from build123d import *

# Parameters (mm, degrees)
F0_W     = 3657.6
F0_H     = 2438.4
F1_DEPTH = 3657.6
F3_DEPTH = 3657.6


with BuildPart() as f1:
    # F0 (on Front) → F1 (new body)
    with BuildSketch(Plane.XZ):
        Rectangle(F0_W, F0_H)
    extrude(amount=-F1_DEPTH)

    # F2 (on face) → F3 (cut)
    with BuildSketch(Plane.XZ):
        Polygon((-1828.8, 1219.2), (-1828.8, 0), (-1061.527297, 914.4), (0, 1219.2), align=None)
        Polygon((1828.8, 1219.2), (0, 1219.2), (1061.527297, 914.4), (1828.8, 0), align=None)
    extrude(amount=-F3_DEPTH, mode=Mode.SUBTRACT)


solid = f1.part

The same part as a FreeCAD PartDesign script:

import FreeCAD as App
import Part
import Sketcher
Q = App.Units.Quantity


def add_polygon(sketch, points):
    """Adds a closed chain of lines whose ends are joined by coincident constraints."""
    first, n = sketch.GeometryCount, len(points)
    for a, b in zip(points, points[1:] + points[:1]):
        sketch.addGeometry(Part.LineSegment(App.Vector(*a, 0), App.Vector(*b, 0)), False)
    for i in range(n):
        sketch.addConstraint(Sketcher.Constraint("Coincident", first + i, 2, first + (i + 1) % n, 1))

doc = App.newDocument("Part")
body = doc.addObject("PartDesign::Body", "Body")

# Sketch on XZ plane
sketch1 = body.newObject("Sketcher::SketchObject", "Sketch")
sketch1.AttachmentSupport = (doc.getObject("XZ_Plane"), [""])
sketch1.MapMode = "FlatFace"
add_polygon(sketch1, [(-1829, 1219), (-1829, -1219), (1829, -1219), (1829, 1219)])  # lines 0-3
sketch1.addConstraint([
    Sketcher.Constraint("Vertical", 0),
    Sketcher.Constraint("Horizontal", 1),
    Sketcher.Constraint("Vertical", 2),
    Sketcher.Constraint("Horizontal", 3),
    Sketcher.Constraint("Symmetric", 0, 2, 2, 2, -1, 1),
    Sketcher.Constraint("DistanceX", 1, 1, 1, 2, Q("144 in")),
    Sketcher.Constraint("DistanceY", 0, 2, 0, 1, Q("96 in")),
])
pad1 = body.newObject("PartDesign::Pad", "Pad")
pad1.Profile = sketch1
pad1.Length = Q("144 in")
pad1.Reversed = True

# Sketch on XZ plane
sketch2 = body.newObject("Sketcher::SketchObject", "Sketch001")
sketch2.AttachmentSupport = (doc.getObject("XZ_Plane"), [""])
sketch2.MapMode = "FlatFace"
add_polygon(sketch2, [(-1829, 1219), (-1829, 0), (-1062, 914), (0, 1219)])  # lines 0-3
add_polygon(sketch2, [(1829, 1219), (0, 1219), (1062, 914), (1829, 0)])  # lines 4-7
sketch2.addConstraint([
    Sketcher.Constraint("Vertical", 0),
    Sketcher.Constraint("Horizontal", 3),
    Sketcher.Constraint("Horizontal", 4),
    Sketcher.Constraint("Vertical", 7),
    Sketcher.Constraint("Coincident", 4, 2, 2, 2),
    Sketcher.Constraint("Symmetric", 0, 2, 6, 2, -1, 1),
    Sketcher.Constraint("Symmetric", 1, 2, 5, 2, -2),
    Sketcher.Constraint("PointOnObject", 0, 2, -1),
    Sketcher.Constraint("PointOnObject", 2, 2, -2),
    Sketcher.Constraint("DistanceX", 3, 2, 3, 1, Q("72 in")),
    Sketcher.Constraint("DistanceY", 0, 2, 0, 1, Q("48 in")),
    Sketcher.Constraint("DistanceY", -1, 1, 1, 2, Q("36 in")),
    Sketcher.Constraint("Angle", 1, Q("50 deg")),
])
pocket1 = body.newObject("PartDesign::Pocket", "Pocket")
pocket1.Profile = sketch2
pocket1.Length = Q("144 in")

doc.recompute()
